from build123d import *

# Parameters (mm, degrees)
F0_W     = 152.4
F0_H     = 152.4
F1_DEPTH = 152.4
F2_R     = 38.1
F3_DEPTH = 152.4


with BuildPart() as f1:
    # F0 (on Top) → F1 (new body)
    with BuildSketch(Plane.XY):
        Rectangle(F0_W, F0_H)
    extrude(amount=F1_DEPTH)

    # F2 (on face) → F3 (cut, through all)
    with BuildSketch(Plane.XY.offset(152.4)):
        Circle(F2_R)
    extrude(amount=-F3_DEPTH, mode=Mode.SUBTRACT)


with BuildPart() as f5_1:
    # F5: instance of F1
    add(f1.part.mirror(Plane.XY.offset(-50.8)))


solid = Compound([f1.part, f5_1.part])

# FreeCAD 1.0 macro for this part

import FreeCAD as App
import Part
import Sketcher
Q = App.Units.Quantity


def add_polygon(sketch, points):
    """Adds a closed chain of lines whose ends are joined by coincident constraints."""
    first, n = sketch.GeometryCount, len(points)
    for a, b in zip(points, points[1:] + points[:1]):
        sketch.addGeometry(Part.LineSegment(App.Vector(*a, 0), App.Vector(*b, 0)), False)
    for i in range(n):
        sketch.addConstraint(Sketcher.Constraint("Coincident", first + i, 2, first + (i + 1) % n, 1))

doc = App.newDocument("Part")
body = doc.addObject("PartDesign::Body", "Body")

sketch1 = body.newObject("Sketcher::SketchObject", "Sketch")
sketch1.AttachmentSupport = (doc.getObject("XY_Plane"), [""])
sketch1.MapMode = "FlatFace"
add_polygon(sketch1, [(-76.2, 76.2), (-76.2, -76.2), (76.2, -76.2), (76.2, 76.2)])
sketch1.addConstraint(Sketcher.Constraint("Vertical", 0))
sketch1.addConstraint(Sketcher.Constraint("Horizontal", 1))
sketch1.addConstraint(Sketcher.Constraint("Vertical", 2))
sketch1.addConstraint(Sketcher.Constraint("Horizontal", 3))
sketch1.addConstraint(Sketcher.Constraint("Symmetric", 0, 2, 2, 2, -1, 1))
sketch1.addConstraint(Sketcher.Constraint("Equal", 3, 0))
sketch1.addConstraint(Sketcher.Constraint("DistanceX", 1, 1, 1, 2, Q("6 in")))
pad1 = body.newObject("PartDesign::Pad", "Pad")
pad1.Profile = sketch1
pad1.Length = Q("6 in")

sketch2 = body.newObject("Sketcher::SketchObject", "Sketch001")
sketch2.AttachmentSupport = (doc.getObject("XY_Plane"), [""])
sketch2.MapMode = "FlatFace"
sketch2.AttachmentOffset = App.Placement(App.Vector(0, 0, 6 * 25.4), App.Rotation())
sketch2.addGeometry(Part.Circle(App.Vector(0, 0, 0), App.Vector(0, 0, 1), 38.1), False)
sketch2.addConstraint(Sketcher.Constraint("Coincident", 0, 3, -1, 1))
sketch2.addConstraint(Sketcher.Constraint("Diameter", 0, Q("3 in")))
pocket1 = body.newObject("PartDesign::Pocket", "Pocket")
pocket1.Profile = sketch2
pocket1.Type = "ThroughAll"
body2 = doc.addObject("PartDesign::Body", "Body001")
doc.recompute()

mirroring = doc.addObject("Part::Mirroring", "Mirroring")
mirroring.Source = body
mirroring.Base = App.Vector(0, 0, -50.8)
mirroring.Normal = App.Vector(0, 0, 1)
body2.BaseFeature = mirroring
doc.recompute()
mirroring.Visibility = False

doc.recompute()
